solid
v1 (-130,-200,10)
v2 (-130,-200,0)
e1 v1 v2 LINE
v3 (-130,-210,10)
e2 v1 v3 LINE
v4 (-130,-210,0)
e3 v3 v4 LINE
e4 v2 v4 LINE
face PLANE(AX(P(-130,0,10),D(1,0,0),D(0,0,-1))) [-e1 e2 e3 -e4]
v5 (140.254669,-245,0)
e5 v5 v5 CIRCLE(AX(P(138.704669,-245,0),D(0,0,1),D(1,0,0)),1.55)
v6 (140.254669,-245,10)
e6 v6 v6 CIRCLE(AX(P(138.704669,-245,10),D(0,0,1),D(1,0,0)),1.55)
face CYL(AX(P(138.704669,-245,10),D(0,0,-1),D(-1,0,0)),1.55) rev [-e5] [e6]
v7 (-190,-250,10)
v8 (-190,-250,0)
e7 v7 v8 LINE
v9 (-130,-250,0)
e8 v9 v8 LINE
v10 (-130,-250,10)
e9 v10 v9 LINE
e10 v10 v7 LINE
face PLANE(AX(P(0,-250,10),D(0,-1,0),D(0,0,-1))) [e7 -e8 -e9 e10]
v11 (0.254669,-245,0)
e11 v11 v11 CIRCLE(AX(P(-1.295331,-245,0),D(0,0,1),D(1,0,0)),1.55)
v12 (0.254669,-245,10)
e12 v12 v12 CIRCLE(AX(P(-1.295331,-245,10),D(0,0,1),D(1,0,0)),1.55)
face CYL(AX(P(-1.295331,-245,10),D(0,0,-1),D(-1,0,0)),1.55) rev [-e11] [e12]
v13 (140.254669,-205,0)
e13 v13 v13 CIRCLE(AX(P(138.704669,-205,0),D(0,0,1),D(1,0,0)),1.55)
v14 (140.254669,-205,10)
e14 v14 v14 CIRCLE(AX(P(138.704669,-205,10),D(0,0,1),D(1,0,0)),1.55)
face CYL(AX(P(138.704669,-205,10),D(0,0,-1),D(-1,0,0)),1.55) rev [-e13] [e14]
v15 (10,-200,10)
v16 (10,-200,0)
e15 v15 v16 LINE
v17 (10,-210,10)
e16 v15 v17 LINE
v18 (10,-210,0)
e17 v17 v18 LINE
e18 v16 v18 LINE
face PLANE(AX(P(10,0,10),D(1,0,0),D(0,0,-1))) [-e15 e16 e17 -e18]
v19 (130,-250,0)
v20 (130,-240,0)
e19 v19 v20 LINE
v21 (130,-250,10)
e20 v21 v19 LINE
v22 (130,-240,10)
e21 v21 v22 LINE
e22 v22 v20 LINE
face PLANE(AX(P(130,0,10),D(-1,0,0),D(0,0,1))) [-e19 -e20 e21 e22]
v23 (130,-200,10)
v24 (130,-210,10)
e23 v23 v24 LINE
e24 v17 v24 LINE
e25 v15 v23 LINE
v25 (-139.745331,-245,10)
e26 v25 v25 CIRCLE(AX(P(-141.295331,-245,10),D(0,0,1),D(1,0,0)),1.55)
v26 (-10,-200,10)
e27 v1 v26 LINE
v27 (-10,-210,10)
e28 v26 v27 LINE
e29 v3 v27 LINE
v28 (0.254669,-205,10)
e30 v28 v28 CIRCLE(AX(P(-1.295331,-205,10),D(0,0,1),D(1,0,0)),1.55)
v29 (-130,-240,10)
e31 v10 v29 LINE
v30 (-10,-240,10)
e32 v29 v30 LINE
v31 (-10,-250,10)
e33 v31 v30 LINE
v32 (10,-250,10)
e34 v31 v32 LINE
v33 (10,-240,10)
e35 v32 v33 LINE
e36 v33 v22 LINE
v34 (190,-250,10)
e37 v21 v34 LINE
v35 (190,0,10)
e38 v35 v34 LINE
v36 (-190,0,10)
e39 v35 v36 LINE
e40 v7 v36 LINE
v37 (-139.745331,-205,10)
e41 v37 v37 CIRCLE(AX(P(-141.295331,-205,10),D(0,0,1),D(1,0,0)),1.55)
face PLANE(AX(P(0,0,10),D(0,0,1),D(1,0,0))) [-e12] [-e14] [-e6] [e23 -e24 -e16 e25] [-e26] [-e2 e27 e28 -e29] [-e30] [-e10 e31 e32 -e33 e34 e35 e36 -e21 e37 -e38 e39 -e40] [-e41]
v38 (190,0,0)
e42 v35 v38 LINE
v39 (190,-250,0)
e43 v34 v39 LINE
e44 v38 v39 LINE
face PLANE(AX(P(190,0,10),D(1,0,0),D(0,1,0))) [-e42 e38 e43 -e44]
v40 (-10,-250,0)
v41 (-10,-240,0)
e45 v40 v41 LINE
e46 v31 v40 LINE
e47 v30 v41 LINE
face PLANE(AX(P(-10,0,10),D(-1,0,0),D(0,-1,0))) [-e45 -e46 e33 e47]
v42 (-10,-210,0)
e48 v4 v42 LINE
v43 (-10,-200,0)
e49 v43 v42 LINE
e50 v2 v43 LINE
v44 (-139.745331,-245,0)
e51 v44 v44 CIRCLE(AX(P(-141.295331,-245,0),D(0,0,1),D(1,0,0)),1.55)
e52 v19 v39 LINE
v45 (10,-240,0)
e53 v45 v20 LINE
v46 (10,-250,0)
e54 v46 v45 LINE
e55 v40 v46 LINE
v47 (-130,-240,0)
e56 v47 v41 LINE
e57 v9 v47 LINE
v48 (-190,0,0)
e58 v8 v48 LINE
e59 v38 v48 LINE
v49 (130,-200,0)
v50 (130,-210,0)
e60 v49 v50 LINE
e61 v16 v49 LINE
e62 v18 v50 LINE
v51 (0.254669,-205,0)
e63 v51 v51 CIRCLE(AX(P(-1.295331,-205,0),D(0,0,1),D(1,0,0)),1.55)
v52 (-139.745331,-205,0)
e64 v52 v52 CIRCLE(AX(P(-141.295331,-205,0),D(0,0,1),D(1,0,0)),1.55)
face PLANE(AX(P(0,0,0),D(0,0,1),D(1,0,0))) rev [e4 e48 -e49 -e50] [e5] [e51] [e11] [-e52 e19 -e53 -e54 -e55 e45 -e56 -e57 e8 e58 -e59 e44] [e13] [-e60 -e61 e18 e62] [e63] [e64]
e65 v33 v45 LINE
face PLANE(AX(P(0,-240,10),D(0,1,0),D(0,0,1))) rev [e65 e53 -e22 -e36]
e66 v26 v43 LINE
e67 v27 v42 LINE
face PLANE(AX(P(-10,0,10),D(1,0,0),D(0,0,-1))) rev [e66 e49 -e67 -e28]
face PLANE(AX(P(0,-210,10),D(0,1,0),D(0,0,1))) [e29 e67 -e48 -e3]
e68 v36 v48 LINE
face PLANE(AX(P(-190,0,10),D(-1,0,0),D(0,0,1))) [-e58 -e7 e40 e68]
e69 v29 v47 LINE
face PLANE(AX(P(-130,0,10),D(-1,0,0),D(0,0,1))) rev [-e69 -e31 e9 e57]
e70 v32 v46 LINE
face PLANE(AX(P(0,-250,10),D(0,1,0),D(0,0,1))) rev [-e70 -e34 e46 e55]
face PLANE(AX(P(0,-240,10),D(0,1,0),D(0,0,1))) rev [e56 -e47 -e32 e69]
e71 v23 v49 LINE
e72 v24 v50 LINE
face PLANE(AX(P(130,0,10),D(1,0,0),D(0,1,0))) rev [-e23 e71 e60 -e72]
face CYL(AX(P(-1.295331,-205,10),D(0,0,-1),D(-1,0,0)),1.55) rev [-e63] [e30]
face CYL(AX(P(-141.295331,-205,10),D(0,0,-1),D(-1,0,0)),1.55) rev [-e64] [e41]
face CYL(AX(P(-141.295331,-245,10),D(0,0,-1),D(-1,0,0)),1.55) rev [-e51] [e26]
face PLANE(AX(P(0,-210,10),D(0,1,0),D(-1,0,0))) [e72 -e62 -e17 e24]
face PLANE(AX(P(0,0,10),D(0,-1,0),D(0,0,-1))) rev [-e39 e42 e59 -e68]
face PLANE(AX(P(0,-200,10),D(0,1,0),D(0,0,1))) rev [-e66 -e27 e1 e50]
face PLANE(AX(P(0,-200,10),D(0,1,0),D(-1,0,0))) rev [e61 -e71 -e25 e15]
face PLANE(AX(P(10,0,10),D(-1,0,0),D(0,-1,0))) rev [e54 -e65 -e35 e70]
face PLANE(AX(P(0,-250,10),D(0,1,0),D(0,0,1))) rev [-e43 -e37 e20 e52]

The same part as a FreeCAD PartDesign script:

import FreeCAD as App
import Part
import Sketcher
Q = App.Units.Quantity

doc = App.newDocument("Part")
params = doc.addObject("Spreadsheet::Sheet", "Params")
for row, (alias, value) in enumerate([
    ("sketch1_diameter", "3.1 mm"),
    ("sketch1_width", "120 mm"),
    ("sketch1_width2", "20 mm"),
    ("sketch1_width3", "60 mm"),
    ("sketch1_height", "10 mm"),
    ("pad1_length", "10 mm"),
], start=1):
    params.set(f"A{row}", alias)
    params.set(f"B{row}", "=" + value)
    params.setAlias(f"B{row}", alias)

body = doc.addObject("PartDesign::Body", "Body")

# Sketch on XY plane
sketch1 = body.newObject("Sketcher::SketchObject", "Sketch")
sketch1.AttachmentSupport = (doc.getObject("XY_Plane"), [""])
sketch1.MapMode = "FlatFace"
sketch1.addGeometry(Part.LineSegment(App.Vector(-130, -250, 0), App.Vector(-130, -240, 0)), False)
sketch1.addGeometry(Part.LineSegment(App.Vector(-130, -240, 0), App.Vector(-10, -240, 0)), False)
sketch1.addGeometry(Part.LineSegment(App.Vector(-10, -240, 0), App.Vector(-10, -250, 0)), False)
sketch1.addGeometry(Part.LineSegment(App.Vector(-10, -250, 0), App.Vector(10, -250, 0)), False)
sketch1.addGeometry(Part.LineSegment(App.Vector(10, -250, 0), App.Vector(10, -240, 0)), False)
sketch1.addGeometry(Part.LineSegment(App.Vector(10, -240, 0), App.Vector(130, -240, 0)), False)
sketch1.addGeometry(Part.LineSegment(App.Vector(130, -240, 0), App.Vector(130, -250, 0)), False)
sketch1.addGeometry(Part.LineSegment(App.Vector(130, -250, 0), App.Vector(190, -250, 0)), False)
sketch1.addGeometry(Part.LineSegment(App.Vector(190, -250, 0), App.Vector(190, 0, 0)), False)
sketch1.addGeometry(Part.LineSegment(App.Vector(190, 0, 0), App.Vector(-190, 0, 0)), False)
sketch1.addGeometry(Part.LineSegment(App.Vector(-190, 0, 0), App.Vector(-190, -250, 0)), False)
sketch1.addGeometry(Part.LineSegment(App.Vector(-190, -250, 0), App.Vector(-130, -250, 0)), False)
sketch1.addGeometry(Part.Circle(App.Vector(-141.3, -245, 0), App.Vector(0, 0, 1), 1.6), False)
sketch1.addGeometry(Part.Circle(App.Vector(-1.3, -245, 0), App.Vector(0, 0, 1), 1.6), False)
sketch1.addGeometry(Part.Circle(App.Vector(138.7, -245, 0), App.Vector(0, 0, 1), 1.6), False)
sketch1.addGeometry(Part.Circle(App.Vector(-141.3, -205, 0), App.Vector(0, 0, 1), 1.6), False)
sketch1.addGeometry(Part.LineSegment(App.Vector(-10, -210, 0), App.Vector(-130, -210, 0)), False)
sketch1.addGeometry(Part.LineSegment(App.Vector(-130, -210, 0), App.Vector(-130, -200, 0)), False)
sketch1.addGeometry(Part.LineSegment(App.Vector(-130, -200, 0), App.Vector(-10, -200, 0)), False)
sketch1.addGeometry(Part.LineSegment(App.Vector(-10, -200, 0), App.Vector(-10, -210, 0)), False)
sketch1.addGeometry(Part.Circle(App.Vector(-1.3, -205, 0), App.Vector(0, 0, 1), 1.6), False)
sketch1.addGeometry(Part.LineSegment(App.Vector(130, -210, 0), App.Vector(10, -210, 0)), False)
sketch1.addGeometry(Part.LineSegment(App.Vector(10, -210, 0), App.Vector(10, -200, 0)), False)
sketch1.addGeometry(Part.LineSegment(App.Vector(10, -200, 0), App.Vector(130, -200, 0)), False)
sketch1.addGeometry(Part.LineSegment(App.Vector(130, -200, 0), App.Vector(130, -210, 0)), False)
sketch1.addGeometry(Part.Circle(App.Vector(138.7, -205, 0), App.Vector(0, 0, 1), 1.6), False)
sketch1.addConstraint(Sketcher.Constraint("Coincident", 0, 2, 1, 1))
sketch1.addConstraint(Sketcher.Constraint("Coincident", 1, 2, 2, 1))
sketch1.addConstraint(Sketcher.Constraint("Coincident", 2, 2, 3, 1))
sketch1.addConstraint(Sketcher.Constraint("Coincident", 3, 2, 4, 1))
sketch1.addConstraint(Sketcher.Constraint("Coincident", 4, 2, 5, 1))
sketch1.addConstraint(Sketcher.Constraint("Coincident", 5, 2, 6, 1))
sketch1.addConstraint(Sketcher.Constraint("Coincident", 6, 2, 7, 1))
sketch1.addConstraint(Sketcher.Constraint("Coincident", 7, 2, 8, 1))
sketch1.addConstraint(Sketcher.Constraint("Coincident", 8, 2, 9, 1))
sketch1.addConstraint(Sketcher.Constraint("Coincident", 9, 2, 10, 1))
sketch1.addConstraint(Sketcher.Constraint("Coincident", 10, 2, 11, 1))
sketch1.addConstraint(Sketcher.Constraint("Coincident", 11, 2, 0, 1))
sketch1.addConstraint(Sketcher.Constraint("Coincident", 16, 2, 17, 1))
sketch1.addConstraint(Sketcher.Constraint("Coincident", 17, 2, 18, 1))
sketch1.addConstraint(Sketcher.Constraint("Coincident", 18, 2, 19, 1))
sketch1.addConstraint(Sketcher.Constraint("Coincident", 19, 2, 16, 1))
sketch1.addConstraint(Sketcher.Constraint("Coincident", 21, 2, 22, 1))
sketch1.addConstraint(Sketcher.Constraint("Coincident", 22, 2, 23, 1))
sketch1.addConstraint(Sketcher.Constraint("Coincident", 23, 2, 24, 1))
sketch1.addConstraint(Sketcher.Constraint("Coincident", 24, 2, 21, 1))
sketch1.addConstraint(Sketcher.Constraint("Vertical", 0))
sketch1.addConstraint(Sketcher.Constraint("Horizontal", 1))
sketch1.addConstraint(Sketcher.Constraint("Vertical", 2))
sketch1.addConstraint(Sketcher.Constraint("Horizontal", 3))
sketch1.addConstraint(Sketcher.Constraint("Vertical", 4))
sketch1.addConstraint(Sketcher.Constraint("Horizontal", 5))
sketch1.addConstraint(Sketcher.Constraint("Vertical", 6))
sketch1.addConstraint(Sketcher.Constraint("Horizontal", 7))
sketch1.addConstraint(Sketcher.Constraint("Vertical", 8))
sketch1.addConstraint(Sketcher.Constraint("Horizontal", 9))
sketch1.addConstraint(Sketcher.Constraint("Vertical", 10))
sketch1.addConstraint(Sketcher.Constraint("Horizontal", 11))
sketch1.addConstraint(Sketcher.Constraint("Horizontal", 16))
sketch1.addConstraint(Sketcher.Constraint("Vertical", 17))
sketch1.addConstraint(Sketcher.Constraint("Horizontal", 18))
sketch1.addConstraint(Sketcher.Constraint("Vertical", 19))
sketch1.addConstraint(Sketcher.Constraint("Horizontal", 21))
sketch1.addConstraint(Sketcher.Constraint("Vertical", 22))
sketch1.addConstraint(Sketcher.Constraint("Horizontal", 23))
sketch1.addConstraint(Sketcher.Constraint("Vertical", 24))
sketch1.addConstraint(Sketcher.Constraint("Equal", 12, 13))
sketch1.addConstraint(Sketcher.Constraint("Equal", 13, 14))
sketch1.addConstraint(Sketcher.Constraint("Equal", 14, 15))
sketch1.addConstraint(Sketcher.Constraint("Equal", 15, 20))
sketch1.addConstraint(Sketcher.Constraint("Equal", 20, 25))
sketch1.addConstraint(Sketcher.Constraint("Symmetric", 8, 2, 9, 2, -1, 1))
sketch1.addConstraint(Sketcher.Constraint("Symmetric", 1, 2, 4, 2, -2))
sketch1.addConstraint(Sketcher.Constraint("Symmetric", 6, 2, 11, 2, -2))
sketch1.addConstraint(Sketcher.Constraint("Symmetric", 19, 2, 21, 2, -2))
sketch1.addConstraint(Sketcher.Constraint("Symmetric", 17, 2, 23, 2, -2))
sketch1.addConstraint(Sketcher.Constraint("Horizontal", 12, 3, 13, 3))
sketch1.addConstraint(Sketcher.Constraint("Horizontal", 13, 3, 14, 3))
sketch1.addConstraint(Sketcher.Constraint("Horizontal", 15, 3, 20, 3))
sketch1.addConstraint(Sketcher.Constraint("Horizontal", 20, 3, 25, 3))
sketch1.addConstraint(Sketcher.Constraint("Horizontal", 3, 2, 6, 2))
sketch1.addConstraint(Sketcher.Constraint("Vertical", 12, 3, 15, 3))
sketch1.addConstraint(Sketcher.Constraint("Vertical", 13, 3, 20, 3))
sketch1.addConstraint(Sketcher.Constraint("Vertical", 14, 3, 25, 3))
sketch1.addConstraint(Sketcher.Constraint("Vertical", 11, 2, 16, 2))
sketch1.addConstraint(Sketcher.Constraint("Vertical", 2, 2, 18, 2))
sketch1.addConstraint(Sketcher.Constraint("Equal", 6, 17))
sketch1.addConstraint(Sketcher.Constraint("Diameter", 12, Q("3.1 mm")))
sketch1.addConstraint(Sketcher.Constraint("DistanceX", 1, 1, 1, 2, Q("120 mm")))
sketch1.addConstraint(Sketcher.Constraint("DistanceX", 3, 1, 3, 2, Q("20 mm")))
sketch1.addConstraint(Sketcher.Constraint("DistanceX", 7, 1, 7, 2, Q("60 mm")))
sketch1.addConstraint(Sketcher.Constraint("DistanceY", 0, 1, 0, 2, Q("10 mm")))
sketch1.addConstraint(Sketcher.Constraint("DistanceY", 8, 1, 8, 2, Q("250 mm")))
sketch1.addConstraint(Sketcher.Constraint("DistanceY", 12, 3, -1, 1, Q("245 mm")))
sketch1.addConstraint(Sketcher.Constraint("DistanceY", 15, 3, -1, 1, Q("205 mm")))
sketch1.addConstraint(Sketcher.Constraint("DistanceY", 16, 2, -1, 1, Q("210 mm")))
sketch1.addConstraint(Sketcher.Constraint("DistanceX", 12, 3, 13, 3, Q("140 mm")))
sketch1.addConstraint(Sketcher.Constraint("DistanceX", 13, 3, 14, 3, Q("140 mm")))
sketch1.addConstraint(Sketcher.Constraint("DistanceX", 12, 3, -1, 1, Q("141.295331 mm")))
sketch1.setExpression("Constraints[61]", "Params.sketch1_diameter")
sketch1.setExpression("Constraints[62]", "Params.sketch1_width")
sketch1.setExpression("Constraints[63]", "Params.sketch1_width2")
sketch1.setExpression("Constraints[64]", "Params.sketch1_width3")
sketch1.setExpression("Constraints[65]", "Params.sketch1_height")
pad1 = body.newObject("PartDesign::Pad", "Pad")
pad1.Profile = sketch1
pad1.setExpression("Length", "Params.pad1_length")

doc.recompute()
